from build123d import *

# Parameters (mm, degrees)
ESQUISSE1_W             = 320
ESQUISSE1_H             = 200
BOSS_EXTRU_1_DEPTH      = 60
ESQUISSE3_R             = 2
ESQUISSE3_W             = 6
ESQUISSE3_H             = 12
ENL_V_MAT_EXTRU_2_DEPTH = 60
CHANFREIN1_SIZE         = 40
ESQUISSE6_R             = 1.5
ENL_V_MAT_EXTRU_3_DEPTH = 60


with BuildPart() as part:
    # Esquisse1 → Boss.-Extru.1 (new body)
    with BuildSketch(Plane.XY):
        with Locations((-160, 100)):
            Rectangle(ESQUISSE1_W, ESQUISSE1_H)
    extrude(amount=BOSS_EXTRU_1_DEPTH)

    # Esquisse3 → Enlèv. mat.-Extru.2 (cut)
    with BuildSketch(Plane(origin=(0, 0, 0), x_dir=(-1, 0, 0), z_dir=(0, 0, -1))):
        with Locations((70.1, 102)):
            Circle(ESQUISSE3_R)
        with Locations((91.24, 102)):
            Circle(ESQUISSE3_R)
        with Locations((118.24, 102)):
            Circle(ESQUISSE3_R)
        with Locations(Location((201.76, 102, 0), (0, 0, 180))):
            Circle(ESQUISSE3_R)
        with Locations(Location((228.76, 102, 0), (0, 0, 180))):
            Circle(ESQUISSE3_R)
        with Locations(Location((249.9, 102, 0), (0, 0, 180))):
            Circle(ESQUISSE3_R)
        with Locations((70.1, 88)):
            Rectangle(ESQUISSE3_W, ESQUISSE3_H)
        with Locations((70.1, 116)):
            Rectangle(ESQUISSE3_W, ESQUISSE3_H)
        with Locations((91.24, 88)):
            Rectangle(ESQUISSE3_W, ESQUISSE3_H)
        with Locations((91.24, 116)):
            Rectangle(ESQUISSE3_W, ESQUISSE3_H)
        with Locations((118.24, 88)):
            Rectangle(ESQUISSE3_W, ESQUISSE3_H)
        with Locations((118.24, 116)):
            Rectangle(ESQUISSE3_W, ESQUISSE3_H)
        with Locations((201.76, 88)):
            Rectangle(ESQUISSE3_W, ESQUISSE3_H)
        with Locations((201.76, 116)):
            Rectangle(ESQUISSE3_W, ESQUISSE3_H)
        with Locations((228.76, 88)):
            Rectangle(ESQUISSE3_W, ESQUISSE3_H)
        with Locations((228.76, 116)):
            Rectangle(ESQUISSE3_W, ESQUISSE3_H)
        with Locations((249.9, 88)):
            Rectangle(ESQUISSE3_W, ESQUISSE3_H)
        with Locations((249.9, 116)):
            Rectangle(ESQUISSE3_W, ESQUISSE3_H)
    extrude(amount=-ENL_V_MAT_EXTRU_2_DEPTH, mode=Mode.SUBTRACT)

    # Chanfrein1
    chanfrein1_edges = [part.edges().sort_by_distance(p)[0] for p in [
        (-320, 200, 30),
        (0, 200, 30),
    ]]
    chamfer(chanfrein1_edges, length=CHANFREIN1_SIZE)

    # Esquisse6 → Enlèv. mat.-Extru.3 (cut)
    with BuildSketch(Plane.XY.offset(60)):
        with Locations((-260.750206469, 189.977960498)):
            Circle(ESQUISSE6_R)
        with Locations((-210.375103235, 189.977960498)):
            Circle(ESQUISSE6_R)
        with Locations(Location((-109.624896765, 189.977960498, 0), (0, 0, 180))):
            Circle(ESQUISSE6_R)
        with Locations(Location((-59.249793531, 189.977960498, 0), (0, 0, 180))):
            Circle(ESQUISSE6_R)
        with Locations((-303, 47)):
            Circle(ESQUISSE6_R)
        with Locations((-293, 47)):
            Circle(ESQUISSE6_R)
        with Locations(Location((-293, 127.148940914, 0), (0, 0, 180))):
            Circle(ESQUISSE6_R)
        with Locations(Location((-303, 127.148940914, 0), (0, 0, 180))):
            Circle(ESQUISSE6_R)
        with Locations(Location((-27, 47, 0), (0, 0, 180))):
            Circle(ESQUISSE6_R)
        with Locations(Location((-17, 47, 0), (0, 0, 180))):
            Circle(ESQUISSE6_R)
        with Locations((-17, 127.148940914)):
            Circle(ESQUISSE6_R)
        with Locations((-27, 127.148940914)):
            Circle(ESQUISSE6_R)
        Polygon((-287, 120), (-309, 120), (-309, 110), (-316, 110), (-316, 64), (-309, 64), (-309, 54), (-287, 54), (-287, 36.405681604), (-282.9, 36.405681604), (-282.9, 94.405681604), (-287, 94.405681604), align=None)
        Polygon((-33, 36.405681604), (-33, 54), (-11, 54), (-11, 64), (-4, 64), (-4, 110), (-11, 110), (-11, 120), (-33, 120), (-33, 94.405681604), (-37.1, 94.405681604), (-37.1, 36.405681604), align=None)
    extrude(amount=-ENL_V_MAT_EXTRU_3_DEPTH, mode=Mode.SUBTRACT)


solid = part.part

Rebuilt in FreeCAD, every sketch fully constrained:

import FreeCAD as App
import Part
import Sketcher
from FreeCAD import Vector
Q = App.Units.Quantity


def edges_at(feature, points):
    """Names of the edges that pass closest to the given points."""
    edges = feature.Shape.Edges
    near = lambda p: min(range(len(edges)), key=lambda i: edges[i].distToShape(Part.Vertex(*p))[0])
    return sorted({f"Edge{near(p) + 1}" for p in points})

doc = App.newDocument("Part")
body = doc.addObject("PartDesign::Body", "Body")

sketch1 = body.newObject("Sketcher::SketchObject", "Sketch")
sketch1.AttachmentSupport = (doc.getObject("XY_Plane"), [""])
sketch1.MapMode = "FlatFace"
sketch1.addGeometry(Part.LineSegment(Vector(-320, 200, 0), Vector(-320, 0, 0)), False)
sketch1.addGeometry(Part.LineSegment(Vector(-320, 0, 0), Vector(0, 0, 0)), False)
sketch1.addGeometry(Part.LineSegment(Vector(0, 0, 0), Vector(0, 200, 0)), False)
sketch1.addGeometry(Part.LineSegment(Vector(0, 200, 0), Vector(-320, 200, 0)), False)
sketch1.addConstraint(Sketcher.Constraint("Coincident", 0, 2, 1, 1))
sketch1.addConstraint(Sketcher.Constraint("Coincident", 1, 2, 2, 1))
sketch1.addConstraint(Sketcher.Constraint("Coincident", 2, 2, 3, 1))
sketch1.addConstraint(Sketcher.Constraint("Coincident", 3, 2, 0, 1))
sketch1.addConstraint(Sketcher.Constraint("Vertical", 0))
sketch1.addConstraint(Sketcher.Constraint("Horizontal", 1))
sketch1.addConstraint(Sketcher.Constraint("Vertical", 2))
sketch1.addConstraint(Sketcher.Constraint("Horizontal", 3))
sketch1.addConstraint(Sketcher.Constraint("Coincident", 1, 2, -1, 1))
sketch1.addConstraint(Sketcher.Constraint("DistanceX", 1, 1, 1, 2, Q("320 mm")))
sketch1.addConstraint(Sketcher.Constraint("DistanceY", 0, 2, 0, 1, Q("200 mm")))
pad1 = body.newObject("PartDesign::Pad", "Pad")
pad1.Profile = sketch1
pad1.Length = 60

sketch2 = body.newObject("Sketcher::SketchObject", "Sketch001")
sketch2.AttachmentSupport = (doc.getObject("XY_Plane"), [""])
sketch2.MapMode = "FlatFace"
sketch2.addGeometry(Part.Circle(Vector(-70.1, 102, 0), Vector(0, 0, 1), 2), False)
sketch2.addGeometry(Part.Circle(Vector(-91.24, 102, 0), Vector(0, 0, 1), 2), False)
sketch2.addGeometry(Part.Circle(Vector(-118.24, 102, 0), Vector(0, 0, 1), 2), False)
sketch2.addGeometry(Part.Circle(Vector(-201.76, 102, 0), Vector(0, 0, 1), 2), False)
sketch2.addGeometry(Part.Circle(Vector(-228.76, 102, 0), Vector(0, 0, 1), 2), False)
sketch2.addGeometry(Part.Circle(Vector(-249.9, 102, 0), Vector(0, 0, 1), 2), False)
sketch2.addGeometry(Part.LineSegment(Vector(-67.1, 94, 0), Vector(-67.1, 82, 0)), False)
sketch2.addGeometry(Part.LineSegment(Vector(-67.1, 82, 0), Vector(-73.1, 82, 0)), False)
sketch2.addGeometry(Part.LineSegment(Vector(-73.1, 82, 0), Vector(-73.1, 94, 0)), False)
sketch2.addGeometry(Part.LineSegment(Vector(-73.1, 94, 0), Vector(-67.1, 94, 0)), False)
sketch2.addGeometry(Part.LineSegment(Vector(-67.1, 122, 0), Vector(-67.1, 110, 0)), False)
sketch2.addGeometry(Part.LineSegment(Vector(-67.1, 110, 0), Vector(-73.1, 110, 0)), False)
sketch2.addGeometry(Part.LineSegment(Vector(-73.1, 110, 0), Vector(-73.1, 122, 0)), False)
sketch2.addGeometry(Part.LineSegment(Vector(-73.1, 122, 0), Vector(-67.1, 122, 0)), False)
sketch2.addGeometry(Part.LineSegment(Vector(-88.24, 94, 0), Vector(-88.24, 82, 0)), False)
sketch2.addGeometry(Part.LineSegment(Vector(-88.24, 82, 0), Vector(-94.24, 82, 0)), False)
sketch2.addGeometry(Part.LineSegment(Vector(-94.24, 82, 0), Vector(-94.24, 94, 0)), False)
sketch2.addGeometry(Part.LineSegment(Vector(-94.24, 94, 0), Vector(-88.24, 94, 0)), False)
sketch2.addGeometry(Part.LineSegment(Vector(-88.24, 122, 0), Vector(-88.24, 110, 0)), False)
sketch2.addGeometry(Part.LineSegment(Vector(-88.24, 110, 0), Vector(-94.24, 110, 0)), False)
sketch2.addGeometry(Part.LineSegment(Vector(-94.24, 110, 0), Vector(-94.24, 122, 0)), False)
sketch2.addGeometry(Part.LineSegment(Vector(-94.24, 122, 0), Vector(-88.24, 122, 0)), False)
sketch2.addGeometry(Part.LineSegment(Vector(-115.24, 94, 0), Vector(-115.24, 82, 0)), False)
sketch2.addGeometry(Part.LineSegment(Vector(-115.24, 82, 0), Vector(-121.24, 82, 0)), False)
sketch2.addGeometry(Part.LineSegment(Vector(-121.24, 82, 0), Vector(-121.24, 94, 0)), False)
sketch2.addGeometry(Part.LineSegment(Vector(-121.24, 94, 0), Vector(-115.24, 94, 0)), False)
sketch2.addGeometry(Part.LineSegment(Vector(-115.24, 122, 0), Vector(-115.24, 110, 0)), False)
sketch2.addGeometry(Part.LineSegment(Vector(-115.24, 110, 0), Vector(-121.24, 110, 0)), False)
sketch2.addGeometry(Part.LineSegment(Vector(-121.24, 110, 0), Vector(-121.24, 122, 0)), False)
sketch2.addGeometry(Part.LineSegment(Vector(-121.24, 122, 0), Vector(-115.24, 122, 0)), False)
sketch2.addGeometry(Part.LineSegment(Vector(-198.76, 94, 0), Vector(-198.76, 82, 0)), False)
sketch2.addGeometry(Part.LineSegment(Vector(-198.76, 82, 0), Vector(-204.76, 82, 0)), False)
sketch2.addGeometry(Part.LineSegment(Vector(-204.76, 82, 0), Vector(-204.76, 94, 0)), False)
sketch2.addGeometry(Part.LineSegment(Vector(-204.76, 94, 0), Vector(-198.76, 94, 0)), False)
sketch2.addGeometry(Part.LineSegment(Vector(-198.76, 122, 0), Vector(-198.76, 110, 0)), False)
sketch2.addGeometry(Part.LineSegment(Vector(-198.76, 110, 0), Vector(-204.76, 110, 0)), False)
sketch2.addGeometry(Part.LineSegment(Vector(-204.76, 110, 0), Vector(-204.76, 122, 0)), False)
sketch2.addGeometry(Part.LineSegment(Vector(-204.76, 122, 0), Vector(-198.76, 122, 0)), False)
sketch2.addGeometry(Part.LineSegment(Vector(-225.76, 94, 0), Vector(-225.76, 82, 0)), False)
sketch2.addGeometry(Part.LineSegment(Vector(-225.76, 82, 0), Vector(-231.76, 82, 0)), False)
sketch2.addGeometry(Part.LineSegment(Vector(-231.76, 82, 0), Vector(-231.76, 94, 0)), False)
sketch2.addGeometry(Part.LineSegment(Vector(-231.76, 94, 0), Vector(-225.76, 94, 0)), False)
sketch2.addGeometry(Part.LineSegment(Vector(-225.76, 122, 0), Vector(-225.76, 110, 0)), False)
sketch2.addGeometry(Part.LineSegment(Vector(-225.76, 110, 0), Vector(-231.76, 110, 0)), False)
sketch2.addGeometry(Part.LineSegment(Vector(-231.76, 110, 0), Vector(-231.76, 122, 0)), False)
sketch2.addGeometry(Part.LineSegment(Vector(-231.76, 122, 0), Vector(-225.76, 122, 0)), False)
sketch2.addGeometry(Part.LineSegment(Vector(-246.9, 94, 0), Vector(-246.9, 82, 0)), False)
sketch2.addGeometry(Part.LineSegment(Vector(-246.9, 82, 0), Vector(-252.9, 82, 0)), False)
sketch2.addGeometry(Part.LineSegment(Vector(-252.9, 82, 0), Vector(-252.9, 94, 0)), False)
sketch2.addGeometry(Part.LineSegment(Vector(-252.9, 94, 0), Vector(-246.9, 94, 0)), False)
sketch2.addGeometry(Part.LineSegment(Vector(-246.9, 122, 0), Vector(-246.9, 110, 0)), False)
sketch2.addGeometry(Part.LineSegment(Vector(-246.9, 110, 0), Vector(-252.9, 110, 0)), False)
sketch2.addGeometry(Part.LineSegment(Vector(-252.9, 110, 0), Vector(-252.9, 122, 0)), False)
sketch2.addGeometry(Part.LineSegment(Vector(-252.9, 122, 0), Vector(-246.9, 122, 0)), False)
sketch2.addConstraint(Sketcher.Constraint("Coincident", 6, 2, 7, 1))
sketch2.addConstraint(Sketcher.Constraint("Coincident", 7, 2, 8, 1))
sketch2.addConstraint(Sketcher.Constraint("Coincident", 8, 2, 9, 1))
sketch2.addConstraint(Sketcher.Constraint("Coincident", 9, 2, 6, 1))
sketch2.addConstraint(Sketcher.Constraint("Coincident", 10, 2, 11, 1))
sketch2.addConstraint(Sketcher.Constraint("Coincident", 11, 2, 12, 1))
sketch2.addConstraint(Sketcher.Constraint("Coincident", 12, 2, 13, 1))
sketch2.addConstraint(Sketcher.Constraint("Coincident", 13, 2, 10, 1))
sketch2.addConstraint(Sketcher.Constraint("Coincident", 14, 2, 15, 1))
sketch2.addConstraint(Sketcher.Constraint("Coincident", 15, 2, 16, 1))
sketch2.addConstraint(Sketcher.Constraint("Coincident", 16, 2, 17, 1))
sketch2.addConstraint(Sketcher.Constraint("Coincident", 17, 2, 14, 1))
sketch2.addConstraint(Sketcher.Constraint("Coincident", 18, 2, 19, 1))
sketch2.addConstraint(Sketcher.Constraint("Coincident", 19, 2, 20, 1))
sketch2.addConstraint(Sketcher.Constraint("Coincident", 20, 2, 21, 1))
sketch2.addConstraint(Sketcher.Constraint("Coincident", 21, 2, 18, 1))
sketch2.addConstraint(Sketcher.Constraint("Coincident", 22, 2, 23, 1))
sketch2.addConstraint(Sketcher.Constraint("Coincident", 23, 2, 24, 1))
sketch2.addConstraint(Sketcher.Constraint("Coincident", 24, 2, 25, 1))
sketch2.addConstraint(Sketcher.Constraint("Coincident", 25, 2, 22, 1))
sketch2.addConstraint(Sketcher.Constraint("Coincident", 26, 2, 27, 1))
sketch2.addConstraint(Sketcher.Constraint("Coincident", 27, 2, 28, 1))
sketch2.addConstraint(Sketcher.Constraint("Coincident", 28, 2, 29, 1))
sketch2.addConstraint(Sketcher.Constraint("Coincident", 29, 2, 26, 1))
sketch2.addConstraint(Sketcher.Constraint("Coincident", 30, 2, 31, 1))
sketch2.addConstraint(Sketcher.Constraint("Coincident", 31, 2, 32, 1))
sketch2.addConstraint(Sketcher.Constraint("Coincident", 32, 2, 33, 1))
sketch2.addConstraint(Sketcher.Constraint("Coincident", 33, 2, 30, 1))
sketch2.addConstraint(Sketcher.Constraint("Coincident", 34, 2, 35, 1))
sketch2.addConstraint(Sketcher.Constraint("Coincident", 35, 2, 36, 1))
sketch2.addConstraint(Sketcher.Constraint("Coincident", 36, 2, 37, 1))
sketch2.addConstraint(Sketcher.Constraint("Coincident", 37, 2, 34, 1))
sketch2.addConstraint(Sketcher.Constraint("Coincident", 38, 2, 39, 1))
sketch2.addConstraint(Sketcher.Constraint("Coincident", 39, 2, 40, 1))
sketch2.addConstraint(Sketcher.Constraint("Coincident", 40, 2, 41, 1))
sketch2.addConstraint(Sketcher.Constraint("Coincident", 41, 2, 38, 1))
sketch2.addConstraint(Sketcher.Constraint("Coincident", 42, 2, 43, 1))
sketch2.addConstraint(Sketcher.Constraint("Coincident", 43, 2, 44, 1))
sketch2.addConstraint(Sketcher.Constraint("Coincident", 44, 2, 45, 1))
sketch2.addConstraint(Sketcher.Constraint("Coincident", 45, 2, 42, 1))
sketch2.addConstraint(Sketcher.Constraint("Coincident", 46, 2, 47, 1))
sketch2.addConstraint(Sketcher.Constraint("Coincident", 47, 2, 48, 1))
sketch2.addConstraint(Sketcher.Constraint("Coincident", 48, 2, 49, 1))
sketch2.addConstraint(Sketcher.Constraint("Coincident", 49, 2, 46, 1))
sketch2.addConstraint(Sketcher.Constraint("Coincident", 50, 2, 51, 1))
sketch2.addConstraint(Sketcher.Constraint("Coincident", 51, 2, 52, 1))
sketch2.addConstraint(Sketcher.Constraint("Coincident", 52, 2, 53, 1))
sketch2.addConstraint(Sketcher.Constraint("Coincident", 53, 2, 50, 1))
sketch2.addConstraint(Sketcher.Constraint("Vertical", 6))
sketch2.addConstraint(Sketcher.Constraint("Horizontal", 7))
sketch2.addConstraint(Sketcher.Constraint("Vertical", 8))
sketch2.addConstraint(Sketcher.Constraint("Horizontal", 9))
sketch2.addConstraint(Sketcher.Constraint("Vertical", 10))
sketch2.addConstraint(Sketcher.Constraint("Horizontal", 11))
sketch2.addConstraint(Sketcher.Constraint("Vertical", 12))
sketch2.addConstraint(Sketcher.Constraint("Horizontal", 13))
sketch2.addConstraint(Sketcher.Constraint("Vertical", 14))
sketch2.addConstraint(Sketcher.Constraint("Horizontal", 15))
sketch2.addConstraint(Sketcher.Constraint("Vertical", 16))
sketch2.addConstraint(Sketcher.Constraint("Horizontal", 17))
sketch2.addConstraint(Sketcher.Constraint("Vertical", 18))
sketch2.addConstraint(Sketcher.Constraint("Horizontal", 19))
sketch2.addConstraint(Sketcher.Constraint("Vertical", 20))
sketch2.addConstraint(Sketcher.Constraint("Horizontal", 21))
sketch2.addConstraint(Sketcher.Constraint("Vertical", 22))
sketch2.addConstraint(Sketcher.Constraint("Horizontal", 23))
sketch2.addConstraint(Sketcher.Constraint("Vertical", 24))
sketch2.addConstraint(Sketcher.Constraint("Horizontal", 25))
sketch2.addConstraint(Sketcher.Constraint("Vertical", 26))
sketch2.addConstraint(Sketcher.Constraint("Horizontal", 27))
sketch2.addConstraint(Sketcher.Constraint("Vertical", 28))
sketch2.addConstraint(Sketcher.Constraint("Horizontal", 29))
sketch2.addConstraint(Sketcher.Constraint("Vertical", 30))
sketch2.addConstraint(Sketcher.Constraint("Horizontal", 31))
sketch2.addConstraint(Sketcher.Constraint("Vertical", 32))
sketch2.addConstraint(Sketcher.Constraint("Horizontal", 33))
sketch2.addConstraint(Sketcher.Constraint("Vertical", 34))
sketch2.addConstraint(Sketcher.Constraint("Horizontal", 35))
sketch2.addConstraint(Sketcher.Constraint("Vertical", 36))
sketch2.addConstraint(Sketcher.Constraint("Horizontal", 37))
sketch2.addConstraint(Sketcher.Constraint("Vertical", 38))
sketch2.addConstraint(Sketcher.Constraint("Horizontal", 39))
sketch2.addConstraint(Sketcher.Constraint("Vertical", 40))
sketch2.addConstraint(Sketcher.Constraint("Horizontal", 41))
sketch2.addConstraint(Sketcher.Constraint("Vertical", 42))
sketch2.addConstraint(Sketcher.Constraint("Horizontal", 43))
sketch2.addConstraint(Sketcher.Constraint("Vertical", 44))
sketch2.addConstraint(Sketcher.Constraint("Horizontal", 45))
sketch2.addConstraint(Sketcher.Constraint("Vertical", 46))
sketch2.addConstraint(Sketcher.Constraint("Horizontal", 47))
sketch2.addConstraint(Sketcher.Constraint("Vertical", 48))
sketch2.addConstraint(Sketcher.Constraint("Horizontal", 49))
sketch2.addConstraint(Sketcher.Constraint("Vertical", 50))
sketch2.addConstraint(Sketcher.Constraint("Horizontal", 51))
sketch2.addConstraint(Sketcher.Constraint("Vertical", 52))
sketch2.addConstraint(Sketcher.Constraint("Horizontal", 53))
sketch2.addConstraint(Sketcher.Constraint("Equal", 0, 1))
sketch2.addConstraint(Sketcher.Constraint("Equal", 1, 2))
sketch2.addConstraint(Sketcher.Constraint("Equal", 2, 3))
sketch2.addConstraint(Sketcher.Constraint("Equal", 3, 4))
sketch2.addConstraint(Sketcher.Constraint("Equal", 4, 5))
sketch2.addConstraint(Sketcher.Constraint("Horizontal", 0, 3, 1, 3))
sketch2.addConstraint(Sketcher.Constraint("Horizontal", 1, 3, 2, 3))
sketch2.addConstraint(Sketcher.Constraint("Horizontal", 2, 3, 3, 3))
sketch2.addConstraint(Sketcher.Constraint("Horizontal", 3, 3, 4, 3))
sketch2.addConstraint(Sketcher.Constraint("Horizontal", 4, 3, 5, 3))
sketch2.addConstraint(Sketcher.Constraint("Horizontal", 7, 2, 14, 2))
sketch2.addConstraint(Sketcher.Constraint("Horizontal", 9, 2, 16, 2))
sketch2.addConstraint(Sketcher.Constraint("Horizontal", 11, 2, 18, 2))
sketch2.addConstraint(Sketcher.Constraint("Horizontal", 13, 2, 20, 2))
sketch2.addConstraint(Sketcher.Constraint("Horizontal", 15, 2, 22, 2))
sketch2.addConstraint(Sketcher.Constraint("Horizontal", 17, 2, 24, 2))
sketch2.addConstraint(Sketcher.Constraint("Horizontal", 19, 2, 26, 2))
sketch2.addConstraint(Sketcher.Constraint("Horizontal", 21, 2, 28, 2))
sketch2.addConstraint(Sketcher.Constraint("Horizontal", 23, 2, 30, 2))
sketch2.addConstraint(Sketcher.Constraint("Horizontal", 25, 2, 32, 2))
sketch2.addConstraint(Sketcher.Constraint("Horizontal", 27, 2, 34, 2))
sketch2.addConstraint(Sketcher.Constraint("Horizontal", 29, 2, 36, 2))
sketch2.addConstraint(Sketcher.Constraint("Horizontal", 31, 2, 38, 2))
sketch2.addConstraint(Sketcher.Constraint("Horizontal", 33, 2, 40, 2))
sketch2.addConstraint(Sketcher.Constraint("Horizontal", 35, 2, 42, 2))
sketch2.addConstraint(Sketcher.Constraint("Horizontal", 37, 2, 44, 2))
sketch2.addConstraint(Sketcher.Constraint("Horizontal", 39, 2, 46, 2))
sketch2.addConstraint(Sketcher.Constraint("Horizontal", 41, 2, 48, 2))
sketch2.addConstraint(Sketcher.Constraint("Horizontal", 43, 2, 50, 2))
sketch2.addConstraint(Sketcher.Constraint("Horizontal", 45, 2, 52, 2))
sketch2.addConstraint(Sketcher.Constraint("Vertical", 9, 2, 10, 2))
sketch2.addConstraint(Sketcher.Constraint("Vertical", 8, 2, 11, 2))
sketch2.addConstraint(Sketcher.Constraint("Vertical", 17, 2, 18, 2))
sketch2.addConstraint(Sketcher.Constraint("Vertical", 16, 2, 19, 2))
sketch2.addConstraint(Sketcher.Constraint("Vertical", 25, 2, 26, 2))
sketch2.addConstraint(Sketcher.Constraint("Vertical", 24, 2, 27, 2))
sketch2.addConstraint(Sketcher.Constraint("Vertical", 33, 2, 34, 2))
sketch2.addConstraint(Sketcher.Constraint("Vertical", 32, 2, 35, 2))
sketch2.addConstraint(Sketcher.Constraint("Vertical", 41, 2, 42, 2))
sketch2.addConstraint(Sketcher.Constraint("Vertical", 40, 2, 43, 2))
sketch2.addConstraint(Sketcher.Constraint("Vertical", 49, 2, 50, 2))
sketch2.addConstraint(Sketcher.Constraint("Vertical", 48, 2, 51, 2))
sketch2.addConstraint(Sketcher.Constraint("Equal", 13, 15))
sketch2.addConstraint(Sketcher.Constraint("Equal", 21, 23))
sketch2.addConstraint(Sketcher.Constraint("Equal", 29, 31))
sketch2.addConstraint(Sketcher.Constraint("Equal", 37, 39))
sketch2.addConstraint(Sketcher.Constraint("Equal", 45, 47))
sketch2.addConstraint(Sketcher.Constraint("Equal", 8, 10))
sketch2.addConstraint(Sketcher.Constraint("Diameter", 0, Q("4 mm")))
sketch2.addConstraint(Sketcher.Constraint("DistanceX", 7, 2, 7, 1, Q("6 mm")))
sketch2.addConstraint(Sketcher.Constraint("DistanceY", 6, 2, 6, 1, Q("12 mm")))
sketch2.addConstraint(Sketcher.Constraint("DistanceY", -1, 1, 0, 3, Q("102 mm")))
sketch2.addConstraint(Sketcher.Constraint("DistanceY", -1, 1, 6, 2, Q("82 mm")))
sketch2.addConstraint(Sketcher.Constraint("DistanceY", -1, 1, 10, 2, Q("110 mm")))
sketch2.addConstraint(Sketcher.Constraint("DistanceX", 2, 3, 1, 3, Q("27 mm")))
sketch2.addConstraint(Sketcher.Constraint("DistanceX", 4, 3, 3, 3, Q("27 mm")))
sketch2.addConstraint(Sketcher.Constraint("DistanceX", 0, 3, 6, 2, Q("3 mm")))
sketch2.addConstraint(Sketcher.Constraint("DistanceX", 1, 3, 14, 2, Q("3 mm")))
sketch2.addConstraint(Sketcher.Constraint("DistanceX", 2, 3, 22, 2, Q("3 mm")))
sketch2.addConstraint(Sketcher.Constraint("DistanceX", 3, 3, 30, 2, Q("3 mm")))
sketch2.addConstraint(Sketcher.Constraint("DistanceX", 4, 3, 38, 2, Q("3 mm")))
sketch2.addConstraint(Sketcher.Constraint("DistanceX", 5, 3, 46, 2, Q("3 mm")))
sketch2.addConstraint(Sketcher.Constraint("DistanceX", 0, 3, -1, 1, Q("70.1 mm")))
sketch2.addConstraint(Sketcher.Constraint("DistanceX", 5, 3, -1, 1, Q("249.9 mm")))
sketch2.addConstraint(Sketcher.Constraint("DistanceX", 1, 3, -1, 1, Q("91.24 mm")))
sketch2.addConstraint(Sketcher.Constraint("DistanceX", 3, 3, -1, 1, Q("201.76 mm")))
pocket1 = body.newObject("PartDesign::Pocket", "Pocket")
pocket1.Profile = sketch2
pocket1.Length = 60
pocket1.Reversed = True
doc.recompute()

chamfer = body.newObject("PartDesign::Chamfer", "Chamfer")
chamfer.Base = (pocket1, edges_at(pocket1, [(-320, 200, 30), (0, 200, 30)]))
chamfer.Size = 40

sketch3 = body.newObject("Sketcher::SketchObject", "Sketch002")
sketch3.AttachmentSupport = (doc.getObject("XY_Plane"), [""])
sketch3.MapMode = "FlatFace"
sketch3.AttachmentOffset = App.Placement(Vector(0, 0, 60), App.Rotation())
sketch3.addGeometry(Part.Circle(Vector(-260.750206, 189.97796, 0), Vector(0, 0, 1), 1.5), False)
sketch3.addGeometry(Part.Circle(Vector(-210.375103, 189.97796, 0), Vector(0, 0, 1), 1.5), False)
sketch3.addGeometry(Part.Circle(Vector(-109.624897, 189.97796, 0), Vector(0, 0, 1), 1.5), False)
sketch3.addGeometry(Part.Circle(Vector(-59.249794, 189.97796, 0), Vector(0, 0, 1), 1.5), False)
sketch3.addGeometry(Part.Circle(Vector(-303, 47, 0), Vector(0, 0, 1), 1.5), False)
sketch3.addGeometry(Part.Circle(Vector(-293, 47, 0), Vector(0, 0, 1), 1.5), False)
sketch3.addGeometry(Part.Circle(Vector(-293, 127.148941, 0), Vector(0, 0, 1), 1.5), False)
sketch3.addGeometry(Part.Circle(Vector(-303, 127.148941, 0), Vector(0, 0, 1), 1.5), False)
sketch3.addGeometry(Part.Circle(Vector(-27, 47, 0), Vector(0, 0, 1), 1.5), False)
sketch3.addGeometry(Part.Circle(Vector(-17, 47, 0), Vector(0, 0, 1), 1.5), False)
sketch3.addGeometry(Part.Circle(Vector(-17, 127.148941, 0), Vector(0, 0, 1), 1.5), False)
sketch3.addGeometry(Part.Circle(Vector(-27, 127.148941, 0), Vector(0, 0, 1), 1.5), False)
sketch3.addGeometry(Part.LineSegment(Vector(-287, 120, 0), Vector(-309, 120, 0)), False)
sketch3.addGeometry(Part.LineSegment(Vector(-309, 120, 0), Vector(-309, 110, 0)), False)
sketch3.addGeometry(Part.LineSegment(Vector(-309, 110, 0), Vector(-316, 110, 0)), False)
sketch3.addGeometry(Part.LineSegment(Vector(-316, 110, 0), Vector(-316, 64, 0)), False)
sketch3.addGeometry(Part.LineSegment(Vector(-316, 64, 0), Vector(-309, 64, 0)), False)
sketch3.addGeometry(Part.LineSegment(Vector(-309, 64, 0), Vector(-309, 54, 0)), False)
sketch3.addGeometry(Part.LineSegment(Vector(-309, 54, 0), Vector(-287, 54, 0)), False)
sketch3.addGeometry(Part.LineSegment(Vector(-287, 54, 0), Vector(-287, 36.405682, 0)), False)
sketch3.addGeometry(Part.LineSegment(Vector(-287, 36.405682, 0), Vector(-282.9, 36.405682, 0)), False)
sketch3.addGeometry(Part.LineSegment(Vector(-282.9, 36.405682, 0), Vector(-282.9, 94.405682, 0)), False)
sketch3.addGeometry(Part.LineSegment(Vector(-282.9, 94.405682, 0), Vector(-287, 94.405682, 0)), False)
sketch3.addGeometry(Part.LineSegment(Vector(-287, 94.405682, 0), Vector(-287, 120, 0)), False)
sketch3.addGeometry(Part.LineSegment(Vector(-33, 36.405682, 0), Vector(-33, 54, 0)), False)
sketch3.addGeometry(Part.LineSegment(Vector(-33, 54, 0), Vector(-11, 54, 0)), False)
sketch3.addGeometry(Part.LineSegment(Vector(-11, 54, 0), Vector(-11, 64, 0)), False)
sketch3.addGeometry(Part.LineSegment(Vector(-11, 64, 0), Vector(-4, 64, 0)), False)
sketch3.addGeometry(Part.LineSegment(Vector(-4, 64, 0), Vector(-4, 110, 0)), False)
sketch3.addGeometry(Part.LineSegment(Vector(-4, 110, 0), Vector(-11, 110, 0)), False)
sketch3.addGeometry(Part.LineSegment(Vector(-11, 110, 0), Vector(-11, 120, 0)), False)
sketch3.addGeometry(Part.LineSegment(Vector(-11, 120, 0), Vector(-33, 120, 0)), False)
sketch3.addGeometry(Part.LineSegment(Vector(-33, 120, 0), Vector(-33, 94.405682, 0)), False)
sketch3.addGeometry(Part.LineSegment(Vector(-33, 94.405682, 0), Vector(-37.1, 94.405682, 0)), False)
sketch3.addGeometry(Part.LineSegment(Vector(-37.1, 94.405682, 0), Vector(-37.1, 36.405682, 0)), False)
sketch3.addGeometry(Part.LineSegment(Vector(-37.1, 36.405682, 0), Vector(-33, 36.405682, 0)), False)
sketch3.addConstraint(Sketcher.Constraint("Coincident", 12, 2, 13, 1))
sketch3.addConstraint(Sketcher.Constraint("Coincident", 13, 2, 14, 1))
sketch3.addConstraint(Sketcher.Constraint("Coincident", 14, 2, 15, 1))
sketch3.addConstraint(Sketcher.Constraint("Coincident", 15, 2, 16, 1))
sketch3.addConstraint(Sketcher.Constraint("Coincident", 16, 2, 17, 1))
sketch3.addConstraint(Sketcher.Constraint("Coincident", 17, 2, 18, 1))
sketch3.addConstraint(Sketcher.Constraint("Coincident", 18, 2, 19, 1))
sketch3.addConstraint(Sketcher.Constraint("Coincident", 19, 2, 20, 1))
sketch3.addConstraint(Sketcher.Constraint("Coincident", 20, 2, 21, 1))
sketch3.addConstraint(Sketcher.Constraint("Coincident", 21, 2, 22, 1))
sketch3.addConstraint(Sketcher.Constraint("Coincident", 22, 2, 23, 1))
sketch3.addConstraint(Sketcher.Constraint("Coincident", 23, 2, 12, 1))
sketch3.addConstraint(Sketcher.Constraint("Coincident", 24, 2, 25, 1))
sketch3.addConstraint(Sketcher.Constraint("Coincident", 25, 2, 26, 1))
sketch3.addConstraint(Sketcher.Constraint("Coincident", 26, 2, 27, 1))
sketch3.addConstraint(Sketcher.Constraint("Coincident", 27, 2, 28, 1))
sketch3.addConstraint(Sketcher.Constraint("Coincident", 28, 2, 29, 1))
sketch3.addConstraint(Sketcher.Constraint("Coincident", 29, 2, 30, 1))
sketch3.addConstraint(Sketcher.Constraint("Coincident", 30, 2, 31, 1))
sketch3.addConstraint(Sketcher.Constraint("Coincident", 31, 2, 32, 1))
sketch3.addConstraint(Sketcher.Constraint("Coincident", 32, 2, 33, 1))
sketch3.addConstraint(Sketcher.Constraint("Coincident", 33, 2, 34, 1))
sketch3.addConstraint(Sketcher.Constraint("Coincident", 34, 2, 35, 1))
sketch3.addConstraint(Sketcher.Constraint("Coincident", 35, 2, 24, 1))
sketch3.addConstraint(Sketcher.Constraint("Horizontal", 12))
sketch3.addConstraint(Sketcher.Constraint("Vertical", 13))
sketch3.addConstraint(Sketcher.Constraint("Horizontal", 14))
sketch3.addConstraint(Sketcher.Constraint("Vertical", 15))
sketch3.addConstraint(Sketcher.Constraint("Horizontal", 16))
sketch3.addConstraint(Sketcher.Constraint("Vertical", 17))
sketch3.addConstraint(Sketcher.Constraint("Horizontal", 18))
sketch3.addConstraint(Sketcher.Constraint("Vertical", 19))
sketch3.addConstraint(Sketcher.Constraint("Horizontal", 20))
sketch3.addConstraint(Sketcher.Constraint("Vertical", 21))
sketch3.addConstraint(Sketcher.Constraint("Horizontal", 22))
sketch3.addConstraint(Sketcher.Constraint("Vertical", 23))
sketch3.addConstraint(Sketcher.Constraint("Vertical", 24))
sketch3.addConstraint(Sketcher.Constraint("Horizontal", 25))
sketch3.addConstraint(Sketcher.Constraint("Vertical", 26))
sketch3.addConstraint(Sketcher.Constraint("Horizontal", 27))
sketch3.addConstraint(Sketcher.Constraint("Vertical", 28))
sketch3.addConstraint(Sketcher.Constraint("Horizontal", 29))
sketch3.addConstraint(Sketcher.Constraint("Vertical", 30))
sketch3.addConstraint(Sketcher.Constraint("Horizontal", 31))
sketch3.addConstraint(Sketcher.Constraint("Vertical", 32))
sketch3.addConstraint(Sketcher.Constraint("Horizontal", 33))
sketch3.addConstraint(Sketcher.Constraint("Vertical", 34))
sketch3.addConstraint(Sketcher.Constraint("Horizontal", 35))
sketch3.addConstraint(Sketcher.Constraint("Equal", 0, 1))
sketch3.addConstraint(Sketcher.Constraint("Equal", 1, 2))
sketch3.addConstraint(Sketcher.Constraint("Equal", 2, 3))
sketch3.addConstraint(Sketcher.Constraint("Equal", 3, 4))
sketch3.addConstraint(Sketcher.Constraint("Equal", 4, 5))
sketch3.addConstraint(Sketcher.Constraint("Equal", 5, 6))
sketch3.addConstraint(Sketcher.Constraint("Equal", 6, 7))
sketch3.addConstraint(Sketcher.Constraint("Equal", 7, 8))
sketch3.addConstraint(Sketcher.Constraint("Equal", 8, 9))
sketch3.addConstraint(Sketcher.Constraint("Equal", 9, 10))
sketch3.addConstraint(Sketcher.Constraint("Equal", 10, 11))
sketch3.addConstraint(Sketcher.Constraint("Horizontal", 0, 3, 1, 3))
sketch3.addConstraint(Sketcher.Constraint("Horizontal", 1, 3, 2, 3))
sketch3.addConstraint(Sketcher.Constraint("Horizontal", 2, 3, 3, 3))
sketch3.addConstraint(Sketcher.Constraint("Horizontal", 4, 3, 5, 3))
sketch3.addConstraint(Sketcher.Constraint("Horizontal", 6, 3, 7, 3))
sketch3.addConstraint(Sketcher.Constraint("Horizontal", 5, 3, 8, 3))
sketch3.addConstraint(Sketcher.Constraint("Horizontal", 8, 3, 9, 3))
sketch3.addConstraint(Sketcher.Constraint("Horizontal", 7, 3, 10, 3))
sketch3.addConstraint(Sketcher.Constraint("Horizontal", 10, 3, 11, 3))
sketch3.addConstraint(Sketcher.Constraint("Horizontal", 18, 2, 24, 2))
sketch3.addConstraint(Sketcher.Constraint("Horizontal", 16, 2, 26, 2))
sketch3.addConstraint(Sketcher.Constraint("Horizontal", 14, 2, 28, 2))
sketch3.addConstraint(Sketcher.Constraint("Horizontal", 23, 2, 30, 2))
sketch3.addConstraint(Sketcher.Constraint("Horizontal", 22, 2, 32, 2))
sketch3.addConstraint(Sketcher.Constraint("Horizontal", 20, 2, 34, 2))
sketch3.addConstraint(Sketcher.Constraint("Vertical", 5, 3, 6, 3))
sketch3.addConstraint(Sketcher.Constraint("Vertical", 4, 3, 7, 3))
sketch3.addConstraint(Sketcher.Constraint("Vertical", 9, 3, 10, 3))
sketch3.addConstraint(Sketcher.Constraint("Vertical", 8, 3, 11, 3))
sketch3.addConstraint(Sketcher.Constraint("Vertical", 13, 2, 16, 2))
sketch3.addConstraint(Sketcher.Constraint("Vertical", 19, 2, 22, 2))
sketch3.addConstraint(Sketcher.Constraint("Vertical", 26, 2, 29, 2))
sketch3.addConstraint(Sketcher.Constraint("Vertical", 24, 2, 31, 2))
sketch3.addConstraint(Sketcher.Constraint("Equal", 18, 25))
sketch3.addConstraint(Sketcher.Constraint("Equal", 16, 27))
sketch3.addConstraint(Sketcher.Constraint("Equal", 22, 33))
sketch3.addConstraint(Sketcher.Constraint("Equal", 13, 17))
sketch3.addConstraint(Sketcher.Constraint("Diameter", 0, Q("3 mm")))
sketch3.addConstraint(Sketcher.Constraint("DistanceX", 12, 2, 12, 1, Q("22 mm")))
sketch3.addConstraint(Sketcher.Constraint("DistanceX", 14, 2, 14, 1, Q("7 mm")))
sketch3.addConstraint(Sketcher.Constraint("DistanceY", 13, 2, 13, 1, Q("10 mm")))
sketch3.addConstraint(Sketcher.Constraint("DistanceY", 15, 2, 15, 1, Q("46 mm")))
sketch3.addConstraint(Sketcher.Constraint("DistanceY", 21, 1, 21, 2, Q("58 mm")))
sketch3.addConstraint(Sketcher.Constraint("DistanceX", 20, 1, 20, 2, Q("4.1 mm")))
sketch3.addConstraint(Sketcher.Constraint("DistanceX", 4, 3, -1, 1, Q("303 mm")))
sketch3.addConstraint(Sketcher.Constraint("DistanceY", -1, 1, 4, 3, Q("47 mm")))
sketch3.addConstraint(Sketcher.Constraint("DistanceX", 5, 3, -1, 1, Q("293 mm")))
sketch3.addConstraint(Sketcher.Constraint("DistanceX", 8, 3, -1, 1, Q("27 mm")))
sketch3.addConstraint(Sketcher.Constraint("DistanceX", 9, 3, -1, 1, Q("17 mm")))
sketch3.addConstraint(Sketcher.Constraint("DistanceX", 12, 2, -1, 1, Q("309 mm")))
sketch3.addConstraint(Sketcher.Constraint("DistanceY", -1, 1, 12, 2, Q("120 mm")))
sketch3.addConstraint(Sketcher.Constraint("DistanceX", 24, 2, -1, 1, Q("33 mm")))
sketch3.addConstraint(Sketcher.Constraint("DistanceY", 19, 2, 19, 1, Q("17.594318 mm")))
sketch3.addConstraint(Sketcher.Constraint("DistanceY", -1, 1, 0, 3, Q("189.97796 mm")))
sketch3.addConstraint(Sketcher.Constraint("DistanceY", -1, 1, 6, 3, Q("127.148941 mm")))
sketch3.addConstraint(Sketcher.Constraint("DistanceX", 0, 3, 2, 3, Q("151.12531 mm")))
sketch3.addConstraint(Sketcher.Constraint("DistanceX", 1, 3, 3, 3, Q("151.12531 mm")))
sketch3.addConstraint(Sketcher.Constraint("DistanceX", 0, 3, -1, 1, Q("260.750206 mm")))
sketch3.addConstraint(Sketcher.Constraint("DistanceX", 1, 3, -1, 1, Q("210.375103 mm")))
pocket2 = body.newObject("PartDesign::Pocket", "Pocket001")
pocket2.Profile = sketch3
pocket2.Length = 60

doc.recompute()
